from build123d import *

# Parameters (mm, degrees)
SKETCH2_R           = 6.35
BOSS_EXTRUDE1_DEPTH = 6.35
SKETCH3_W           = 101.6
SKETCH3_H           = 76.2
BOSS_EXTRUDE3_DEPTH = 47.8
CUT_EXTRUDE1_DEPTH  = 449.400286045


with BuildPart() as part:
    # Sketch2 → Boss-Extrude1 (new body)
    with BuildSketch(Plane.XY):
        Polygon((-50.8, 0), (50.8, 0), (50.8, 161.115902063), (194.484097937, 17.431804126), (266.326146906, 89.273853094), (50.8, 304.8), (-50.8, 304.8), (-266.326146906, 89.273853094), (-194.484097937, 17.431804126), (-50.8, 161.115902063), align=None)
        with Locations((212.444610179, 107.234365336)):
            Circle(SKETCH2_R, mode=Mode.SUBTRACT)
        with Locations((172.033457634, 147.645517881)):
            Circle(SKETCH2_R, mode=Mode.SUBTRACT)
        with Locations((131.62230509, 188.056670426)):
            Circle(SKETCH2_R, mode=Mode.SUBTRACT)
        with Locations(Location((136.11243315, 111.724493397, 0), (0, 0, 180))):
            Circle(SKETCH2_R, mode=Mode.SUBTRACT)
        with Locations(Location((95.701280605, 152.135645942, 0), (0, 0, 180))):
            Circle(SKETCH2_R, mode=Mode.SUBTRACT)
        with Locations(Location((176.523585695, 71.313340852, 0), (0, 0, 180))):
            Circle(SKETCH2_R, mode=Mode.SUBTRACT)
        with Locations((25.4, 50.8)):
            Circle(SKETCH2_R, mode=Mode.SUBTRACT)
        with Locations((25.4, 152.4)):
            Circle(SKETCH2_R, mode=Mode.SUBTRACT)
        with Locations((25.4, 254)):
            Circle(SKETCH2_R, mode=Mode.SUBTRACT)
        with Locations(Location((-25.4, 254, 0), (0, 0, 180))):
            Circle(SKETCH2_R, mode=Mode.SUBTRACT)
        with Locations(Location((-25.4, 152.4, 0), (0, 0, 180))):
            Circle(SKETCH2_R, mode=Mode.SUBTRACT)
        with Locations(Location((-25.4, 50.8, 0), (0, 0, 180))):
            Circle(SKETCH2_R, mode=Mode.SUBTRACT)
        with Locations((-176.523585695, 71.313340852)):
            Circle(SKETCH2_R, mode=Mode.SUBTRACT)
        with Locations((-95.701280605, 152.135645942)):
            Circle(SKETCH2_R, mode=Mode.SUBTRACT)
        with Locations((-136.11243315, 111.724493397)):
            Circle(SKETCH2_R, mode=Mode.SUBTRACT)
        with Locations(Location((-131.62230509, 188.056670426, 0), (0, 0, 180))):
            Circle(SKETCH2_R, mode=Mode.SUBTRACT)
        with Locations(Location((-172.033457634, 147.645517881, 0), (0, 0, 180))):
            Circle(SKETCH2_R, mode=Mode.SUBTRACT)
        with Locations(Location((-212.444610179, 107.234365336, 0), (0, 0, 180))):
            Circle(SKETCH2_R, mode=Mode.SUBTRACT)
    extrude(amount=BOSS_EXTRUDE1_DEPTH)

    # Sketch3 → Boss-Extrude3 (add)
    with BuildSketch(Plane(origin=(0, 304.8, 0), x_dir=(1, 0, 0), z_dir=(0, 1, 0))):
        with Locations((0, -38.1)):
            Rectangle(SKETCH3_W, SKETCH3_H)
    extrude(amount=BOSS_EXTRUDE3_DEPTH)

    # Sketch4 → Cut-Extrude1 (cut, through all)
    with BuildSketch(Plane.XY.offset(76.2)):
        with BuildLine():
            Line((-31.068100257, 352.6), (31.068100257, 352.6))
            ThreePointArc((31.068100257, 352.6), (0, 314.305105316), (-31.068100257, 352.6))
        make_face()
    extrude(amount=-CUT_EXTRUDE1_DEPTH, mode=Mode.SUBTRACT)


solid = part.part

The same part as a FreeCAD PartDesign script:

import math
import FreeCAD as App
import Part
import Sketcher

V = App.Vector
Q = App.Units.Quantity

doc = App.newDocument("Part")
body = doc.addObject("PartDesign::Body", "Body")

sketch1 = body.newObject("Sketcher::SketchObject", "Sketch")
sketch1.AttachmentSupport = (doc.getObject("XY_Plane"), [""])
sketch1.MapMode = "FlatFace"
sketch1.addGeometry(Part.LineSegment(V(-51, 0, 0), V(51, 0, 0)), False)
sketch1.addGeometry(Part.LineSegment(V(51, 0, 0), V(51, 161, 0)), False)
sketch1.addGeometry(Part.LineSegment(V(51, 161, 0), V(194, 17, 0)), False)
sketch1.addGeometry(Part.LineSegment(V(194, 17, 0), V(266, 89, 0)), False)
sketch1.addGeometry(Part.LineSegment(V(266, 89, 0), V(51, 305, 0)), False)
sketch1.addGeometry(Part.LineSegment(V(51, 305, 0), V(-51, 305, 0)), False)
sketch1.addGeometry(Part.LineSegment(V(-51, 305, 0), V(-266, 89, 0)), False)
sketch1.addGeometry(Part.LineSegment(V(-266, 89, 0), V(-194, 17, 0)), False)
sketch1.addGeometry(Part.LineSegment(V(-194, 17, 0), V(-51, 161, 0)), False)
sketch1.addGeometry(Part.LineSegment(V(-51, 161, 0), V(-51, 0, 0)), False)
sketch1.addGeometry(Part.Circle(V(-177, 71, 0), V(0, 0, 1), 6), False)
sketch1.addGeometry(Part.Circle(V(-25, 51, 0), V(0, 0, 1), 6), False)
sketch1.addGeometry(Part.Circle(V(-212, 107, 0), V(0, 0, 1), 6), False)
sketch1.addGeometry(Part.Circle(V(-136, 112, 0), V(0, 0, 1), 6), False)
sketch1.addGeometry(Part.Circle(V(-172, 148, 0), V(0, 0, 1), 6), False)
sketch1.addGeometry(Part.Circle(V(-96, 152, 0), V(0, 0, 1), 6), False)
sketch1.addGeometry(Part.Circle(V(25, 51, 0), V(0, 0, 1), 6), False)
sketch1.addGeometry(Part.Circle(V(177, 71, 0), V(0, 0, 1), 6), False)
sketch1.addGeometry(Part.Circle(V(96, 152, 0), V(0, 0, 1), 6), False)
sketch1.addGeometry(Part.Circle(V(136, 112, 0), V(0, 0, 1), 6), False)
sketch1.addGeometry(Part.Circle(V(212, 107, 0), V(0, 0, 1), 6), False)
sketch1.addGeometry(Part.Circle(V(172, 148, 0), V(0, 0, 1), 6), False)
sketch1.addGeometry(Part.Circle(V(-132, 188, 0), V(0, 0, 1), 6), False)
sketch1.addGeometry(Part.Circle(V(-25, 152, 0), V(0, 0, 1), 6), False)
sketch1.addGeometry(Part.Circle(V(-25, 254, 0), V(0, 0, 1), 6), False)
sketch1.addGeometry(Part.Circle(V(25, 152, 0), V(0, 0, 1), 6), False)
sketch1.addGeometry(Part.Circle(V(132, 188, 0), V(0, 0, 1), 6), False)
sketch1.addGeometry(Part.Circle(V(25, 254, 0), V(0, 0, 1), 6), False)
sketch1.addConstraint(Sketcher.Constraint("Coincident", 0, 2, 1, 1))
sketch1.addConstraint(Sketcher.Constraint("Coincident", 1, 2, 2, 1))
sketch1.addConstraint(Sketcher.Constraint("Coincident", 2, 2, 3, 1))
sketch1.addConstraint(Sketcher.Constraint("Coincident", 3, 2, 4, 1))
sketch1.addConstraint(Sketcher.Constraint("Coincident", 4, 2, 5, 1))
sketch1.addConstraint(Sketcher.Constraint("Coincident", 5, 2, 6, 1))
sketch1.addConstraint(Sketcher.Constraint("Coincident", 6, 2, 7, 1))
sketch1.addConstraint(Sketcher.Constraint("Coincident", 7, 2, 8, 1))
sketch1.addConstraint(Sketcher.Constraint("Coincident", 8, 2, 9, 1))
sketch1.addConstraint(Sketcher.Constraint("Coincident", 9, 2, 0, 1))
sketch1.addConstraint(Sketcher.Constraint("Horizontal", 0))
sketch1.addConstraint(Sketcher.Constraint("Vertical", 1))
sketch1.addConstraint(Sketcher.Constraint("Horizontal", 5))
sketch1.addConstraint(Sketcher.Constraint("Vertical", 9))
sketch1.addConstraint(Sketcher.Constraint("Equal", 10, 11))
sketch1.addConstraint(Sketcher.Constraint("Equal", 11, 12))
sketch1.addConstraint(Sketcher.Constraint("Equal", 12, 13))
sketch1.addConstraint(Sketcher.Constraint("Equal", 13, 14))
sketch1.addConstraint(Sketcher.Constraint("Equal", 14, 15))
sketch1.addConstraint(Sketcher.Constraint("Equal", 15, 16))
sketch1.addConstraint(Sketcher.Constraint("Equal", 16, 17))
sketch1.addConstraint(Sketcher.Constraint("Equal", 17, 18))
sketch1.addConstraint(Sketcher.Constraint("Equal", 18, 19))
sketch1.addConstraint(Sketcher.Constraint("Equal", 19, 20))
sketch1.addConstraint(Sketcher.Constraint("Equal", 20, 21))
sketch1.addConstraint(Sketcher.Constraint("Equal", 21, 22))
sketch1.addConstraint(Sketcher.Constraint("Equal", 22, 23))
sketch1.addConstraint(Sketcher.Constraint("Equal", 23, 24))
sketch1.addConstraint(Sketcher.Constraint("Equal", 24, 25))
sketch1.addConstraint(Sketcher.Constraint("Equal", 25, 26))
sketch1.addConstraint(Sketcher.Constraint("Equal", 26, 27))
sketch1.addConstraint(Sketcher.Constraint("Symmetric", 0, 2, 9, 2, -1, 1))
sketch1.addConstraint(Sketcher.Constraint("Symmetric", 11, 3, 16, 3, -2))
sketch1.addConstraint(Sketcher.Constraint("Symmetric", 10, 3, 17, 3, -2))
sketch1.addConstraint(Sketcher.Constraint("Symmetric", 15, 3, 18, 3, -2))
sketch1.addConstraint(Sketcher.Constraint("Symmetric", 13, 3, 19, 3, -2))
sketch1.addConstraint(Sketcher.Constraint("Symmetric", 12, 3, 20, 3, -2))
sketch1.addConstraint(Sketcher.Constraint("Symmetric", 14, 3, 21, 3, -2))
sketch1.addConstraint(Sketcher.Constraint("Symmetric", 23, 3, 25, 3, -2))
sketch1.addConstraint(Sketcher.Constraint("Symmetric", 22, 3, 26, 3, -2))
sketch1.addConstraint(Sketcher.Constraint("Symmetric", 24, 3, 27, 3, -2))
sketch1.addConstraint(Sketcher.Constraint("Symmetric", 3, 2, 6, 2, -2))
sketch1.addConstraint(Sketcher.Constraint("Symmetric", 2, 2, 7, 2, -2))
sketch1.addConstraint(Sketcher.Constraint("Perpendicular", 2, 3))
sketch1.addConstraint(Sketcher.Constraint("Perpendicular", 3, 4))
sketch1.addConstraint(Sketcher.Constraint("Perpendicular", 4, 6))
sketch1.addConstraint(Sketcher.Constraint("Perpendicular", 6, 7))
sketch1.addConstraint(Sketcher.Constraint("Perpendicular", 7, 8))
sketch1.addConstraint(Sketcher.Constraint("Vertical", 11, 3, 23, 3))
sketch1.addConstraint(Sketcher.Constraint("Vertical", 23, 3, 24, 3))
sketch1.addConstraint(Sketcher.Constraint("Vertical", 1, 2, 4, 2))
sketch1.addConstraint(Sketcher.Constraint("Diameter", 10, Q("0.5 in")))
sketch1.addConstraint(Sketcher.Constraint("DistanceX", 0, 1, 0, 2, Q("4 in")))
sketch1.addConstraint(Sketcher.Constraint("Distance", 2, Q("8 in")))
sketch1.addConstraint(Sketcher.Constraint("Distance", 3, Q("4 in")))
sketch1.addConstraint(Sketcher.Constraint("DistanceX", 11, 3, -1, 1, Q("1 in")))
sketch1.addConstraint(Sketcher.Constraint("DistanceY", -1, 1, 11, 3, Q("2 in")))
sketch1.addConstraint(Sketcher.Constraint("DistanceY", -1, 1, 23, 3, Q("6 in")))
sketch1.addConstraint(Sketcher.Constraint("DistanceY", -1, 1, 24, 3, Q("10 in")))
sketch1.addConstraint(Sketcher.Constraint("DistanceY", -1, 1, 4, 2, Q("12 in")))
sketch1.addConstraint(Sketcher.Constraint("DistanceY", -1, 1, 10, 3, Q("71.313341 mm")))
sketch1.addConstraint(Sketcher.Constraint("DistanceX", 12, 3, -1, 1, Q("212.44461 mm")))
sketch1.addConstraint(Sketcher.Constraint("DistanceX", 15, 3, -1, 1, Q("95.701281 mm")))
sketch1.addConstraint(Sketcher.Constraint("DistanceY", -1, 1, 22, 3, Q("188.05667 mm")))
sketch1.addConstraint(Sketcher.Constraint("DistanceY", 12, 3, 13, 3, Q("4.490128 mm")))
sketch1.addConstraint(Sketcher.Constraint("DistanceX", 10, 3, 14, 3, Q("4.490128 mm")))
sketch1.addConstraint(Sketcher.Constraint("DistanceY", 14, 3, 15, 3, Q("4.490128 mm")))
sketch1.addConstraint(Sketcher.Constraint("DistanceY", 12, 3, 15, 3, Q("44.901281 mm")))
sketch1.addConstraint(Sketcher.Constraint("DistanceX", 13, 3, 17, 3, Q("312.636019 mm")))
sketch1.addConstraint(Sketcher.Constraint("DistanceX", 10, 3, 17, 3, Q("353.047171 mm")))
sketch1.addConstraint(Sketcher.Constraint("DistanceX", 13, 3, 22, 3, Q("4.490128 mm")))
sketch1.addConstraint(Sketcher.Constraint("DistanceY", 2, 2, 20, 3, Q("89.802561 mm")))
pad1 = body.newObject("PartDesign::Pad", "Pad")
pad1.Profile = sketch1
pad1.Length = Q("0.25 in")

sketch2 = body.newObject("Sketcher::SketchObject", "Sketch001")
sketch2.AttachmentSupport = (doc.getObject("XZ_Plane"), [""])
sketch2.MapMode = "FlatFace"
sketch2.AttachmentOffset = App.Placement(V(0, 0, -12 * 25.4), App.Rotation())
sketch2.addGeometry(Part.LineSegment(V(-51, 0, 0), V(-51, 76, 0)), False)
sketch2.addGeometry(Part.LineSegment(V(-51, 76, 0), V(51, 76, 0)), False)
sketch2.addGeometry(Part.LineSegment(V(51, 76, 0), V(51, 0, 0)), False)
sketch2.addGeometry(Part.LineSegment(V(51, 0, 0), V(-51, 0, 0)), False)
sketch2.addConstraint(Sketcher.Constraint("Coincident", 0, 2, 1, 1))
sketch2.addConstraint(Sketcher.Constraint("Coincident", 1, 2, 2, 1))
sketch2.addConstraint(Sketcher.Constraint("Coincident", 2, 2, 3, 1))
sketch2.addConstraint(Sketcher.Constraint("Coincident", 3, 2, 0, 1))
sketch2.addConstraint(Sketcher.Constraint("Vertical", 0))
sketch2.addConstraint(Sketcher.Constraint("Horizontal", 1))
sketch2.addConstraint(Sketcher.Constraint("Vertical", 2))
sketch2.addConstraint(Sketcher.Constraint("Horizontal", 3))
sketch2.addConstraint(Sketcher.Constraint("Symmetric", 2, 2, 3, 2, -1, 1))
sketch2.addConstraint(Sketcher.Constraint("DistanceX", 1, 1, 1, 2, Q("4 in")))
sketch2.addConstraint(Sketcher.Constraint("DistanceY", 0, 1, 0, 2, Q("3 in")))
pad2 = body.newObject("PartDesign::Pad", "Pad001")
pad2.Profile = sketch2
pad2.Length = 47.8
pad2.Reversed = True

sketch3 = body.newObject("Sketcher::SketchObject", "Sketch002")
sketch3.AttachmentSupport = (doc.getObject("XY_Plane"), [""])
sketch3.MapMode = "FlatFace"
sketch3.AttachmentOffset = App.Placement(V(0, 0, 3 * 25.4), App.Rotation())
sketch3.addGeometry(Part.LineSegment(V(31, 353, 0), V(-31, 353, 0)), False)
sketch3.addGeometry(Part.ArcOfCircle(Part.Circle(V(0, 346, 0), V(0, 0, 1), 32), math.radians(168), math.radians(372)), False)
sketch3.addConstraint(Sketcher.Constraint("Coincident", 0, 1, 1, 2))
sketch3.addConstraint(Sketcher.Constraint("Coincident", 1, 1, 0, 2))
sketch3.addConstraint(Sketcher.Constraint("Horizontal", 0))
sketch3.addConstraint(Sketcher.Constraint("PointOnObject", 1, 3, -2))
sketch3.addConstraint(Sketcher.Constraint("Radius", 1, Q("1.25 in")))
sketch3.addConstraint(Sketcher.Constraint("DistanceX", 0, 2, 0, 1, Q("62.136201 mm")))
sketch3.addConstraint(Sketcher.Constraint("DistanceY", -1, 1, 0, 1, Q("352.6 mm")))
pocket1 = body.newObject("PartDesign::Pocket", "Pocket")
pocket1.Profile = sketch3
pocket1.Type = "ThroughAll"

doc.recompute()
